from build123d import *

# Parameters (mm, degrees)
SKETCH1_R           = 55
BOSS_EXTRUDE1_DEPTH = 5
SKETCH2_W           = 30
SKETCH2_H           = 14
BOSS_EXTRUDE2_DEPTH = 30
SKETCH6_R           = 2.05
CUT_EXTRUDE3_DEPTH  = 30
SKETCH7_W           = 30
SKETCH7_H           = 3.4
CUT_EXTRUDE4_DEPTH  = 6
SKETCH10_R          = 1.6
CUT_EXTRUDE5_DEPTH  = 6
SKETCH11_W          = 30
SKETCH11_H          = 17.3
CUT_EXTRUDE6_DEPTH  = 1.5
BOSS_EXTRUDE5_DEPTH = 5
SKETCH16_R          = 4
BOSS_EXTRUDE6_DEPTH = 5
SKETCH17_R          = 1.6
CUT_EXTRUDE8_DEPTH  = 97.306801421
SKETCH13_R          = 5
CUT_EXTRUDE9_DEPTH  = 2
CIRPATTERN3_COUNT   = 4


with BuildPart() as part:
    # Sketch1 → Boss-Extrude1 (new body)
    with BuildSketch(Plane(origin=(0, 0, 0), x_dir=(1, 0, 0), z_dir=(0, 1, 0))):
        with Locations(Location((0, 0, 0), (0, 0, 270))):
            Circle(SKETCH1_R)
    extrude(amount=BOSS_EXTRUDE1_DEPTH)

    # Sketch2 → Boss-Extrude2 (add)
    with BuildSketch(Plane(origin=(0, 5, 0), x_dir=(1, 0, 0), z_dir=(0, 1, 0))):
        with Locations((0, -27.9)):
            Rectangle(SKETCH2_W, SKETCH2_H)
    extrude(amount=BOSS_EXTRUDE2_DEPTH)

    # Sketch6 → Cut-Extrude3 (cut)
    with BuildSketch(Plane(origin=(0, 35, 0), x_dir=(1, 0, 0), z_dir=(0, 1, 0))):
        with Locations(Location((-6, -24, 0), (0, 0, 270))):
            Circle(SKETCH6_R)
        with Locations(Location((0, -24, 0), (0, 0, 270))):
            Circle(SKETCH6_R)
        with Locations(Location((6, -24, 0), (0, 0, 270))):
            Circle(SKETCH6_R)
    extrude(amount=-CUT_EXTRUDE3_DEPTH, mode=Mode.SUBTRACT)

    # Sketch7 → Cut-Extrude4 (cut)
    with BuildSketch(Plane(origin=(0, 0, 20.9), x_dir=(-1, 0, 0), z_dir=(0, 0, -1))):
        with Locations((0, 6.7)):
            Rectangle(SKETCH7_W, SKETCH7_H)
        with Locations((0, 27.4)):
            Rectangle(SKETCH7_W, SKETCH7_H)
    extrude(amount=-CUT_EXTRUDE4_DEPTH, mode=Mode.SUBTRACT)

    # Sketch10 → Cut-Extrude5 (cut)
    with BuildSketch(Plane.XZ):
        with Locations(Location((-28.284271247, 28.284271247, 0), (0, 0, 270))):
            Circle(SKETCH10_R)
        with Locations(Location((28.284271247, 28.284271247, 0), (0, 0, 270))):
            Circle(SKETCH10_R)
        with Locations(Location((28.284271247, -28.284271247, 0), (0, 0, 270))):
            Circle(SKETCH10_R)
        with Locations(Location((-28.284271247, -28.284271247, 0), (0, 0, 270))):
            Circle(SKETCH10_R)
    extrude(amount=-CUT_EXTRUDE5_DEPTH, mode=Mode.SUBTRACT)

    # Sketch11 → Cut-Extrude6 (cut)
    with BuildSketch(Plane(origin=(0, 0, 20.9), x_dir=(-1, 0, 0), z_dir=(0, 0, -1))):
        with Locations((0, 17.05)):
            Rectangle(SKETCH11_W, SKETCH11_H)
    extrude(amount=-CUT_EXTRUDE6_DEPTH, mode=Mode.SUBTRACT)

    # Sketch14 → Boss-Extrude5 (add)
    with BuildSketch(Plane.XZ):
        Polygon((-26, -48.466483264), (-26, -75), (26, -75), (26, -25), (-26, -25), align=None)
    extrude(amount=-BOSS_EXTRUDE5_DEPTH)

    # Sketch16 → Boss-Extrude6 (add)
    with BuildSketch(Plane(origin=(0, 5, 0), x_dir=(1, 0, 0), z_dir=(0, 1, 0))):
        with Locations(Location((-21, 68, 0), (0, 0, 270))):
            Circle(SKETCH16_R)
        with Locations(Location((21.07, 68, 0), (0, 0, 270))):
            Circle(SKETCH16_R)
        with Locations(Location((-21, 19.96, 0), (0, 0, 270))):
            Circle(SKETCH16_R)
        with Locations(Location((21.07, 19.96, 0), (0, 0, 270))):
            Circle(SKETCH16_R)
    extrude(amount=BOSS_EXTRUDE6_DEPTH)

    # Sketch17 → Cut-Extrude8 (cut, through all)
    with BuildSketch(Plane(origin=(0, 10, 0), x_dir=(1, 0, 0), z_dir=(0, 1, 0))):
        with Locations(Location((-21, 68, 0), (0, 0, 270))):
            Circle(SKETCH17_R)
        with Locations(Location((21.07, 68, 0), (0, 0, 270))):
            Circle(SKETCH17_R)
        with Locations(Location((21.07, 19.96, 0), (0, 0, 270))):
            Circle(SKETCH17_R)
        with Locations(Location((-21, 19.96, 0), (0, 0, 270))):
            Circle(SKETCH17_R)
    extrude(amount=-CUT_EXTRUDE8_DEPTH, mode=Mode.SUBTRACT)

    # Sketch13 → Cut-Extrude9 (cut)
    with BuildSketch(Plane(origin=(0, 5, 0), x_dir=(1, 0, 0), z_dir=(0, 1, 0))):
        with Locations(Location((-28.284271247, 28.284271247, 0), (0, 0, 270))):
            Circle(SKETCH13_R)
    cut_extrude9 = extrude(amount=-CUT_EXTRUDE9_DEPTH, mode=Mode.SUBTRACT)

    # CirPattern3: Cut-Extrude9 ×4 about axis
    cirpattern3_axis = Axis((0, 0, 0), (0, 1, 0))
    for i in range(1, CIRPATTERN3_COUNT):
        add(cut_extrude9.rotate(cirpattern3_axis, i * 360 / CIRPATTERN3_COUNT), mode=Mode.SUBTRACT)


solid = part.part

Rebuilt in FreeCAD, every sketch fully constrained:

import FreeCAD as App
import Part
import Sketcher

V = App.Vector


def add_polygon(sketch, points):
    """Adds a closed chain of lines whose ends are joined by coincident constraints."""
    first, n = sketch.GeometryCount, len(points)
    for a, b in zip(points, points[1:] + points[:1]):
        sketch.addGeometry(Part.LineSegment(App.Vector(*a, 0), App.Vector(*b, 0)), False)
    for i in range(n):
        sketch.addConstraint(Sketcher.Constraint("Coincident", first + i, 2, first + (i + 1) % n, 1))

doc = App.newDocument("Part")
body = doc.addObject("PartDesign::Body", "Body")

sketch1 = doc.addObject("Sketcher::SketchObject", "Sketch")
body.addObject(sketch1)
sketch1.AttachmentSupport = (doc.XZ_Plane, [""])
sketch1.MapMode = "FlatFace"
sketch1.addGeometry(Part.Circle(V(0, 0, 0), V(0, 0, 1), 55), False)
sketch1.addConstraint(Sketcher.Constraint("Coincident", 0, 3, -1, 1))
sketch1.addConstraint(Sketcher.Constraint("Diameter", 0, 110.0))
pad1 = doc.addObject("PartDesign::Pad", "Pad")
body.addObject(pad1)
pad1.Profile = sketch1
pad1.Length = 5
pad1.Reversed = True

sketch2 = doc.addObject("Sketcher::SketchObject", "Sketch001")
body.addObject(sketch2)
sketch2.AttachmentSupport = (doc.XZ_Plane, [""])
sketch2.MapMode = "FlatFace"
sketch2.AttachmentOffset = App.Placement(V(0, 0, -5), App.Rotation())
add_polygon(sketch2, [(-15, 20.9), (-15, 34.9), (15, 34.9), (15, 20.9)])
sketch2.addConstraint(Sketcher.Constraint("Vertical", 0))
sketch2.addConstraint(Sketcher.Constraint("Horizontal", 1))
sketch2.addConstraint(Sketcher.Constraint("Vertical", 2))
sketch2.addConstraint(Sketcher.Constraint("Horizontal", 3))
sketch2.addConstraint(Sketcher.Constraint("DistanceX", 1, 1, 1, 2, 30.0))
sketch2.addConstraint(Sketcher.Constraint("DistanceY", 0, 1, 0, 2, 14.0))
sketch2.addConstraint(Sketcher.Constraint("DistanceX", 0, 2, -1, 1, 15.0))
sketch2.addConstraint(Sketcher.Constraint("DistanceY", -1, 1, 0, 2, 34.9))
pad2 = doc.addObject("PartDesign::Pad", "Pad001")
body.addObject(pad2)
pad2.Profile = sketch2
pad2.Length = 30
pad2.Reversed = True

sketch3 = doc.addObject("Sketcher::SketchObject", "Sketch002")
body.addObject(sketch3)
sketch3.AttachmentSupport = (doc.XZ_Plane, [""])
sketch3.MapMode = "FlatFace"
sketch3.AttachmentOffset = App.Placement(V(0, 0, -35), App.Rotation())
sketch3.addGeometry(Part.Circle(V(-6, 24, 0), V(0, 0, 1), 2.05), False)
sketch3.addGeometry(Part.Circle(V(0, 24, 0), V(0, 0, 1), 2.05), False)
sketch3.addGeometry(Part.Circle(V(6, 24, 0), V(0, 0, 1), 2.05), False)
sketch3.addConstraint(Sketcher.Constraint("Equal", 0, 1))
sketch3.addConstraint(Sketcher.Constraint("Equal", 1, 2))
sketch3.addConstraint(Sketcher.Constraint("Symmetric", 0, 3, 2, 3, -2))
sketch3.addConstraint(Sketcher.Constraint("PointOnObject", 1, 3, -2))
sketch3.addConstraint(Sketcher.Constraint("Horizontal", 0, 3, 1, 3))
sketch3.addConstraint(Sketcher.Constraint("Diameter", 0, 4.1))
sketch3.addConstraint(Sketcher.Constraint("DistanceX", 0, 3, -1, 1, 6.0))
sketch3.addConstraint(Sketcher.Constraint("DistanceY", -1, 1, 0, 3, 24.0))
pocket1 = doc.addObject("PartDesign::Pocket", "Pocket")
body.addObject(pocket1)
pocket1.Profile = sketch3
pocket1.Length = 30
pocket1.Reversed = True

sketch4 = doc.addObject("Sketcher::SketchObject", "Sketch003")
body.addObject(sketch4)
sketch4.AttachmentSupport = (doc.XY_Plane, [""])
sketch4.MapMode = "FlatFace"
sketch4.AttachmentOffset = App.Placement(V(0, 0, 20.9), App.Rotation())
add_polygon(sketch4, [(15, 8.4), (15, 5), (-15, 5), (-15, 8.4)])
add_polygon(sketch4, [(15, 29.1), (15, 25.7), (-15, 25.7), (-15, 29.1)])
sketch4.addConstraint(Sketcher.Constraint("Vertical", 0))
sketch4.addConstraint(Sketcher.Constraint("Horizontal", 1))
sketch4.addConstraint(Sketcher.Constraint("Vertical", 2))
sketch4.addConstraint(Sketcher.Constraint("Horizontal", 3))
sketch4.addConstraint(Sketcher.Constraint("Vertical", 4))
sketch4.addConstraint(Sketcher.Constraint("Horizontal", 5))
sketch4.addConstraint(Sketcher.Constraint("Vertical", 6))
sketch4.addConstraint(Sketcher.Constraint("Horizontal", 7))
sketch4.addConstraint(Sketcher.Constraint("Vertical", 3, 2, 4, 2))
sketch4.addConstraint(Sketcher.Constraint("Vertical", 2, 2, 5, 2))
sketch4.addConstraint(Sketcher.Constraint("Equal", 2, 4))
sketch4.addConstraint(Sketcher.Constraint("DistanceX", 1, 2, 1, 1, 30.0))
sketch4.addConstraint(Sketcher.Constraint("DistanceY", 0, 2, 0, 1, 3.4))
sketch4.addConstraint(Sketcher.Constraint("DistanceX", -1, 1, 0, 2, 15.0))
sketch4.addConstraint(Sketcher.Constraint("DistanceY", -1, 1, 0, 2, 5.0))
sketch4.addConstraint(Sketcher.Constraint("DistanceY", -1, 1, 4, 2, 25.7))
pocket2 = doc.addObject("PartDesign::Pocket", "Pocket001")
body.addObject(pocket2)
pocket2.Profile = sketch4
pocket2.Length = 6
pocket2.Reversed = True

sketch5 = doc.addObject("Sketcher::SketchObject", "Sketch004")
body.addObject(sketch5)
sketch5.AttachmentSupport = (doc.XZ_Plane, [""])
sketch5.MapMode = "FlatFace"
sketch5.addGeometry(Part.Circle(V(-28.284271, 28.284271, 0), V(0, 0, 1), 1.6), False)
sketch5.addGeometry(Part.Circle(V(28.284271, 28.284271, 0), V(0, 0, 1), 1.6), False)
sketch5.addGeometry(Part.Circle(V(28.284271, -28.284271, 0), V(0, 0, 1), 1.6), False)
sketch5.addGeometry(Part.Circle(V(-28.284271, -28.284271, 0), V(0, 0, 1), 1.6), False)
sketch5.addConstraint(Sketcher.Constraint("Equal", 0, 1))
sketch5.addConstraint(Sketcher.Constraint("Equal", 1, 2))
sketch5.addConstraint(Sketcher.Constraint("Equal", 2, 3))
sketch5.addConstraint(Sketcher.Constraint("Symmetric", 0, 3, 2, 3, -1, 1))
sketch5.addConstraint(Sketcher.Constraint("Symmetric", 1, 3, 3, 3, -1, 1))
sketch5.addConstraint(Sketcher.Constraint("Symmetric", 0, 3, 1, 3, -2))
sketch5.addConstraint(Sketcher.Constraint("Diameter", 0, 3.2))
sketch5.addConstraint(Sketcher.Constraint("DistanceX", 0, 3, -1, 1, 28.284271))
sketch5.addConstraint(Sketcher.Constraint("DistanceY", -1, 1, 0, 3, 28.284271))
pocket3 = doc.addObject("PartDesign::Pocket", "Pocket002")
body.addObject(pocket3)
pocket3.Profile = sketch5
pocket3.Length = 6

sketch6 = doc.addObject("Sketcher::SketchObject", "Sketch005")
body.addObject(sketch6)
sketch6.AttachmentSupport = (doc.XY_Plane, [""])
sketch6.MapMode = "FlatFace"
sketch6.AttachmentOffset = App.Placement(V(0, 0, 20.9), App.Rotation())
add_polygon(sketch6, [(15, 25.7), (15, 8.4), (-15, 8.4), (-15, 25.7)])
sketch6.addConstraint(Sketcher.Constraint("Vertical", 0))
sketch6.addConstraint(Sketcher.Constraint("Horizontal", 1))
sketch6.addConstraint(Sketcher.Constraint("Vertical", 2))
sketch6.addConstraint(Sketcher.Constraint("Horizontal", 3))
sketch6.addConstraint(Sketcher.Constraint("DistanceX", 1, 2, 1, 1, 30.0))
sketch6.addConstraint(Sketcher.Constraint("DistanceY", 0, 2, 0, 1, 17.3))
sketch6.addConstraint(Sketcher.Constraint("DistanceX", -1, 1, 0, 2, 15.0))
sketch6.addConstraint(Sketcher.Constraint("DistanceY", -1, 1, 0, 2, 8.4))
pocket4 = doc.addObject("PartDesign::Pocket", "Pocket003")
body.addObject(pocket4)
pocket4.Profile = sketch6
pocket4.Length = 1.5
pocket4.Reversed = True

sketch7 = doc.addObject("Sketcher::SketchObject", "Sketch006")
body.addObject(sketch7)
sketch7.AttachmentSupport = (doc.XZ_Plane, [""])
sketch7.MapMode = "FlatFace"
add_polygon(sketch7, [(-26, -75), (26, -75), (26, -25), (-26, -25)])
sketch7.addConstraint(Sketcher.Constraint("Horizontal", 0))
sketch7.addConstraint(Sketcher.Constraint("Vertical", 1))
sketch7.addConstraint(Sketcher.Constraint("Horizontal", 2))
sketch7.addConstraint(Sketcher.Constraint("Vertical", 3))
sketch7.addConstraint(Sketcher.Constraint("DistanceX", 0, 1, 0, 2, 52.0))
sketch7.addConstraint(Sketcher.Constraint("DistanceY", 1, 1, 1, 2, 50.0))
sketch7.addConstraint(Sketcher.Constraint("DistanceX", -1, 1, 0, 2, 26.0))
sketch7.addConstraint(Sketcher.Constraint("DistanceY", 0, 2, -1, 1, 75.0))
pad3 = doc.addObject("PartDesign::Pad", "Pad002")
body.addObject(pad3)
pad3.Profile = sketch7
pad3.Length = 5
pad3.Reversed = True

sketch8 = doc.addObject("Sketcher::SketchObject", "Sketch007")
body.addObject(sketch8)
sketch8.AttachmentSupport = (doc.XZ_Plane, [""])
sketch8.MapMode = "FlatFace"
sketch8.AttachmentOffset = App.Placement(V(0, 0, -5), App.Rotation())
sketch8.addGeometry(Part.Circle(V(-21, -68, 0), V(0, 0, 1), 4), False)
sketch8.addGeometry(Part.Circle(V(21.07, -68, 0), V(0, 0, 1), 4), False)
sketch8.addGeometry(Part.Circle(V(-21, -19.96, 0), V(0, 0, 1), 4), False)
sketch8.addGeometry(Part.Circle(V(21.07, -19.96, 0), V(0, 0, 1), 4), False)
sketch8.addConstraint(Sketcher.Constraint("Equal", 0, 1))
sketch8.addConstraint(Sketcher.Constraint("Equal", 1, 2))
sketch8.addConstraint(Sketcher.Constraint("Equal", 2, 3))
sketch8.addConstraint(Sketcher.Constraint("Horizontal", 0, 3, 1, 3))
sketch8.addConstraint(Sketcher.Constraint("Horizontal", 2, 3, 3, 3))
sketch8.addConstraint(Sketcher.Constraint("Vertical", 0, 3, 2, 3))
sketch8.addConstraint(Sketcher.Constraint("Vertical", 1, 3, 3, 3))
sketch8.addConstraint(Sketcher.Constraint("Diameter", 0, 8.0))
sketch8.addConstraint(Sketcher.Constraint("DistanceX", 0, 3, -1, 1, 21.0))
sketch8.addConstraint(Sketcher.Constraint("DistanceY", 0, 3, -1, 1, 68.0))
sketch8.addConstraint(Sketcher.Constraint("DistanceX", -1, 1, 1, 3, 21.07))
sketch8.addConstraint(Sketcher.Constraint("DistanceY", 2, 3, -1, 1, 19.96))
pad4 = doc.addObject("PartDesign::Pad", "Pad003")
body.addObject(pad4)
pad4.Profile = sketch8
pad4.Length = 5
pad4.Reversed = True

sketch9 = doc.addObject("Sketcher::SketchObject", "Sketch008")
body.addObject(sketch9)
sketch9.AttachmentSupport = (doc.XZ_Plane, [""])
sketch9.MapMode = "FlatFace"
sketch9.AttachmentOffset = App.Placement(V(0, 0, -10), App.Rotation())
sketch9.addGeometry(Part.Circle(V(-21, -68, 0), V(0, 0, 1), 1.6), False)
sketch9.addGeometry(Part.Circle(V(21.07, -68, 0), V(0, 0, 1), 1.6), False)
sketch9.addGeometry(Part.Circle(V(21.07, -19.96, 0), V(0, 0, 1), 1.6), False)
sketch9.addGeometry(Part.Circle(V(-21, -19.96, 0), V(0, 0, 1), 1.6), False)
sketch9.addConstraint(Sketcher.Constraint("Equal", 0, 1))
sketch9.addConstraint(Sketcher.Constraint("Equal", 1, 2))
sketch9.addConstraint(Sketcher.Constraint("Equal", 2, 3))
sketch9.addConstraint(Sketcher.Constraint("Horizontal", 0, 3, 1, 3))
sketch9.addConstraint(Sketcher.Constraint("Horizontal", 2, 3, 3, 3))
sketch9.addConstraint(Sketcher.Constraint("Vertical", 1, 3, 2, 3))
sketch9.addConstraint(Sketcher.Constraint("Vertical", 0, 3, 3, 3))
sketch9.addConstraint(Sketcher.Constraint("Diameter", 0, 3.2))
sketch9.addConstraint(Sketcher.Constraint("DistanceX", 0, 3, -1, 1, 21.0))
sketch9.addConstraint(Sketcher.Constraint("DistanceY", 0, 3, -1, 1, 68.0))
sketch9.addConstraint(Sketcher.Constraint("DistanceX", -1, 1, 1, 3, 21.07))
sketch9.addConstraint(Sketcher.Constraint("DistanceY", 2, 3, -1, 1, 19.96))
pocket5 = doc.addObject("PartDesign::Pocket", "Pocket004")
body.addObject(pocket5)
pocket5.Profile = sketch9
pocket5.Type = "ThroughAll"
pocket5.Reversed = True

sketch10 = doc.addObject("Sketcher::SketchObject", "Sketch009")
body.addObject(sketch10)
sketch10.AttachmentSupport = (doc.XZ_Plane, [""])
sketch10.MapMode = "FlatFace"
sketch10.AttachmentOffset = App.Placement(V(0, 0, -5), App.Rotation())
sketch10.addGeometry(Part.Circle(V(-28.284271, -28.284271, 0), V(0, 0, 1), 5), False)
sketch10.addConstraint(Sketcher.Constraint("Diameter", 0, 10.0))
sketch10.addConstraint(Sketcher.Constraint("DistanceX", 0, 3, -1, 1, 28.284271))
sketch10.addConstraint(Sketcher.Constraint("DistanceY", 0, 3, -1, 1, 28.284271))
pocket6 = doc.addObject("PartDesign::Pocket", "Pocket005")
body.addObject(pocket6)
pocket6.Profile = sketch10
pocket6.Length = 2
pocket6.Reversed = True
doc.recompute()

polarpattern = doc.addObject("PartDesign::PolarPattern", "PolarPattern")
body.addObject(polarpattern)
polarpattern.Originals = [pocket6]
polarpattern.Axis = (doc.Y_Axis, [""])
polarpattern.Angle = 360
polarpattern.Occurrences = 4
body.Tip = polarpattern

doc.recompute()
